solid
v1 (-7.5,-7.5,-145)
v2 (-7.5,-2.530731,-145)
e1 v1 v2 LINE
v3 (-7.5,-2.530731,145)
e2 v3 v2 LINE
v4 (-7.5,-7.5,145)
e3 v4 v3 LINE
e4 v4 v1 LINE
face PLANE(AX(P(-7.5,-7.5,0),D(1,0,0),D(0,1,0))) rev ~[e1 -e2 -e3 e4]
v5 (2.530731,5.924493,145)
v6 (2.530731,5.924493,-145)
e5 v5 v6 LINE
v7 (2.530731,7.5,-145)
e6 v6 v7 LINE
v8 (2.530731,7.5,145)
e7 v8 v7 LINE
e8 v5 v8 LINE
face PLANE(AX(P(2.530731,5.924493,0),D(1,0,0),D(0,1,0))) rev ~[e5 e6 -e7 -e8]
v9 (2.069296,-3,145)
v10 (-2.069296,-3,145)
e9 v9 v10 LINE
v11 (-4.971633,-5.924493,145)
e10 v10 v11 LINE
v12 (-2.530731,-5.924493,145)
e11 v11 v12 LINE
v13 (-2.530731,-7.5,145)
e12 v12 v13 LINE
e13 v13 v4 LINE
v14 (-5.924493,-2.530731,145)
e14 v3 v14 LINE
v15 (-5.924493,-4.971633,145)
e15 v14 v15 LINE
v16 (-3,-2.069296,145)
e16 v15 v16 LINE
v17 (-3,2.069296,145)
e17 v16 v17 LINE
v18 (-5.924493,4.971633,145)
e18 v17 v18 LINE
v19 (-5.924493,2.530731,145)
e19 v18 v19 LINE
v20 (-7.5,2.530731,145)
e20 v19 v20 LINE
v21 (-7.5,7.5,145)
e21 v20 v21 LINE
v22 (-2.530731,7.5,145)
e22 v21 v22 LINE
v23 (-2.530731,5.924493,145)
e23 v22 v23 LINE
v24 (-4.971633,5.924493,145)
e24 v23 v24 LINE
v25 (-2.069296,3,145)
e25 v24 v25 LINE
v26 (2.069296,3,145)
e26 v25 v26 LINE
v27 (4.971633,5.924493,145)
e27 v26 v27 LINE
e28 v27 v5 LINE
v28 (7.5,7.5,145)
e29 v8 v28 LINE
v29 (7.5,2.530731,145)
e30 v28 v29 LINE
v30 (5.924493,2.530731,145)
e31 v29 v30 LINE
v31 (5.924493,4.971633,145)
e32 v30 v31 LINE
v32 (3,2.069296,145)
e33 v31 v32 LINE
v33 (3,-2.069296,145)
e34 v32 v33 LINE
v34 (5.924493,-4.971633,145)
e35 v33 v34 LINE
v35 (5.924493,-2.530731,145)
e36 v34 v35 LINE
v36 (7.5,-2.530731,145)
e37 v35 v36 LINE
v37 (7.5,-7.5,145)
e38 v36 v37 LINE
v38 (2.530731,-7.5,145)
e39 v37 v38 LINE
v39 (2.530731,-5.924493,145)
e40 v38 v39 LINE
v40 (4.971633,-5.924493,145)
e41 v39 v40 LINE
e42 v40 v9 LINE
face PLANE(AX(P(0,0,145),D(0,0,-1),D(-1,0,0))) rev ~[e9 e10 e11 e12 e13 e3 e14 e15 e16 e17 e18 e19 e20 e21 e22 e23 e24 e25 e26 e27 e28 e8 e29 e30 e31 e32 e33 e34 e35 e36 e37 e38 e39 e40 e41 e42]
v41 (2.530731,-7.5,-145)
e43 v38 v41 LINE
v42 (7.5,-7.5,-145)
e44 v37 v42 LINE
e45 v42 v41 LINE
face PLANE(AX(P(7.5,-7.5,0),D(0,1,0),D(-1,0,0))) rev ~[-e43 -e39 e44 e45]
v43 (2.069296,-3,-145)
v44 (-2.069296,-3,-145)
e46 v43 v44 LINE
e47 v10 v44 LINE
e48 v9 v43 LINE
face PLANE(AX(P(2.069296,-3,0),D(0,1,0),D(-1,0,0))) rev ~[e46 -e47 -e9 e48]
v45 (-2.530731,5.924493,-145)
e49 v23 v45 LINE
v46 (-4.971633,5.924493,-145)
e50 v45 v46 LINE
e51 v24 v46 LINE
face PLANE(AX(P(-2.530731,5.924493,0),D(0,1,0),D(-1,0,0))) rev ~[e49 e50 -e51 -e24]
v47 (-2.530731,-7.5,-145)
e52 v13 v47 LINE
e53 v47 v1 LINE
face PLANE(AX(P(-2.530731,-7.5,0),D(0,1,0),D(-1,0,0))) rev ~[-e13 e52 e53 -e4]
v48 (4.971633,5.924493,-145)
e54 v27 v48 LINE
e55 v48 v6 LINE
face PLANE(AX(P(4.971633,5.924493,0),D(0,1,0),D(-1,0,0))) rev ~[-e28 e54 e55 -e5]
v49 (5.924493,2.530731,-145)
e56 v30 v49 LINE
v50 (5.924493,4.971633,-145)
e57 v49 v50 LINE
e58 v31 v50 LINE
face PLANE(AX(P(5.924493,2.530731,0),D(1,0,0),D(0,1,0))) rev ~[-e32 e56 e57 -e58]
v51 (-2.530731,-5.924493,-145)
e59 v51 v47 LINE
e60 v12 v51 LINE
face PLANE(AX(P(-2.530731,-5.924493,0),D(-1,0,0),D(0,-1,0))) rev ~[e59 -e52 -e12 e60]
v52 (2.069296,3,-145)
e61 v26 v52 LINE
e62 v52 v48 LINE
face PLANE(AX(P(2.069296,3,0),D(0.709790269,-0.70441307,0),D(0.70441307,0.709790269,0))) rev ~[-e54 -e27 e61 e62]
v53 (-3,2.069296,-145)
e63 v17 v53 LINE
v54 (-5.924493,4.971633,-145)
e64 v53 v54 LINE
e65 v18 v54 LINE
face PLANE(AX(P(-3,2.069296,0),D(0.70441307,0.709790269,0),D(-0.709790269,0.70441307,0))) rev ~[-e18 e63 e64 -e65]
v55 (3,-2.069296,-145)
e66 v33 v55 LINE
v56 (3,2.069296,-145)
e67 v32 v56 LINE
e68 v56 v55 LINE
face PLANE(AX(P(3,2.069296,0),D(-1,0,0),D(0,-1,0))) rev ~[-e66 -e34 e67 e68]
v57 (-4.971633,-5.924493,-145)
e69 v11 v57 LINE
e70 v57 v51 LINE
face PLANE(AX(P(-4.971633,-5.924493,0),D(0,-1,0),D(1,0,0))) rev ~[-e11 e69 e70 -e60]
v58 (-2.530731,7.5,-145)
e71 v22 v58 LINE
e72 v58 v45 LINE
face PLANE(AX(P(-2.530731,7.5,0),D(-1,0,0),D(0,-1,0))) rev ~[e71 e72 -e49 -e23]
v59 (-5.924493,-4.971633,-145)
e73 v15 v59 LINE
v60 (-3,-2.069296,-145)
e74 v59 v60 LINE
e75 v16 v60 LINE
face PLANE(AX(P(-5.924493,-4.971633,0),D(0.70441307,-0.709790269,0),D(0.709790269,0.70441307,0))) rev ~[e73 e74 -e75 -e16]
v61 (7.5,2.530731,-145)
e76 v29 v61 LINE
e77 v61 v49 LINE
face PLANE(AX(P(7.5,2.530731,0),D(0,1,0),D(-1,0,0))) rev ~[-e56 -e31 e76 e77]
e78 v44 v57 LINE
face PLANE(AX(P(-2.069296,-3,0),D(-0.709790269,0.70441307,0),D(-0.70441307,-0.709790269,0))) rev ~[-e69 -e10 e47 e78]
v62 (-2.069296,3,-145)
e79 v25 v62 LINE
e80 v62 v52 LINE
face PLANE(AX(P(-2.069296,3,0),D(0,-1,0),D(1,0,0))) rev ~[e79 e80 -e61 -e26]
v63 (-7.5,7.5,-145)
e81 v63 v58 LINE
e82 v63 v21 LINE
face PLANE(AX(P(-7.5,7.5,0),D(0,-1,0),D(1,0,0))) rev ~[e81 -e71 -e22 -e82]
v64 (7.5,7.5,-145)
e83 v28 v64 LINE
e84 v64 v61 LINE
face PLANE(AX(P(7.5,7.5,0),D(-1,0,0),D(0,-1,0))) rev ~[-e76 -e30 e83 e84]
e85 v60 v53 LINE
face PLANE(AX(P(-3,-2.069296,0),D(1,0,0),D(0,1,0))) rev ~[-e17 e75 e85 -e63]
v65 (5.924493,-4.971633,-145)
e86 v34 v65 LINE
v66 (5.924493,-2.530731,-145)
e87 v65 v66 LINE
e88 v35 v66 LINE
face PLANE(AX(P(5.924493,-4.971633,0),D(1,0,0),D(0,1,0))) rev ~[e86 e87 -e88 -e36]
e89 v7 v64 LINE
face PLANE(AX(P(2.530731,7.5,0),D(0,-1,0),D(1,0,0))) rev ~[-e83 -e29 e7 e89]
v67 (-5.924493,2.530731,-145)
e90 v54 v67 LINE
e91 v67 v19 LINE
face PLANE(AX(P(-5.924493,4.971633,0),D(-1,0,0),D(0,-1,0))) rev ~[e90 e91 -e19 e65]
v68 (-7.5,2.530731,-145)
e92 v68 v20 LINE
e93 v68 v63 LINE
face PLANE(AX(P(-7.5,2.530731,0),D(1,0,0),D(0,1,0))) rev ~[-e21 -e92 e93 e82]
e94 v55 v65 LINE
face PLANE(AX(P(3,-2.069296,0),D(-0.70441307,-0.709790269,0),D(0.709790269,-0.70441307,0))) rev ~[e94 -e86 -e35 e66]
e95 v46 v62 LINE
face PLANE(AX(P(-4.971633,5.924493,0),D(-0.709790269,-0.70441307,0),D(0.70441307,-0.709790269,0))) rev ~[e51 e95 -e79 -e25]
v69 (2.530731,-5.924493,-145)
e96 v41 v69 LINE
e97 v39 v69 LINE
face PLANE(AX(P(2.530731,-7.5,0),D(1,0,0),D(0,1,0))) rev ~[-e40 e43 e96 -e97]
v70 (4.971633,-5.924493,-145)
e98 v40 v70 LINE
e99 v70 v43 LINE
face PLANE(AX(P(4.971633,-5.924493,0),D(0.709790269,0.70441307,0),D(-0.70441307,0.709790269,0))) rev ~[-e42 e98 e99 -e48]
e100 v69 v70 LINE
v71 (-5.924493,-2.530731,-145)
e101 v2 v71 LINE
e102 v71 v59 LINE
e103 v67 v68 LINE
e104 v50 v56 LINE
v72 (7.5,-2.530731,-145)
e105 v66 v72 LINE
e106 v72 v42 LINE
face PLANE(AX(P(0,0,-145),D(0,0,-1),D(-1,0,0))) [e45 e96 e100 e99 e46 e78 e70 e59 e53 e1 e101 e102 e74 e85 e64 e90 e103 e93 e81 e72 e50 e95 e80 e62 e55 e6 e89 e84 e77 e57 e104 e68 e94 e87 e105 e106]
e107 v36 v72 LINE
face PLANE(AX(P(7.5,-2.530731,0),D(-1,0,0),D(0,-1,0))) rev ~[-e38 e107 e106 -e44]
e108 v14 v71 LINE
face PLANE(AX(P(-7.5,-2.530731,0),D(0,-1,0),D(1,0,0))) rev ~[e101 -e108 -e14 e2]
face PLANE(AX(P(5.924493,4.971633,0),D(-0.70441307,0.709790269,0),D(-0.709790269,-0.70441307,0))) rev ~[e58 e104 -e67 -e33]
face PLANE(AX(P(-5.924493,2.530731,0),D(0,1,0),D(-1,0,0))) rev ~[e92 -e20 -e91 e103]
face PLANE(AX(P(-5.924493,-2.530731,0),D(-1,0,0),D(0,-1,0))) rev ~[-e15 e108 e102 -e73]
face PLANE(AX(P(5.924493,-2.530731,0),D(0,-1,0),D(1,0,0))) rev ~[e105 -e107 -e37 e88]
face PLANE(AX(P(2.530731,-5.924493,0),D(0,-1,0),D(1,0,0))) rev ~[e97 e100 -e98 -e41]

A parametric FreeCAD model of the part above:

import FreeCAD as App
import Part
import Sketcher
from FreeCAD import Vector
Q = App.Units.Quantity

doc = App.newDocument("Part")
body = doc.addObject("PartDesign::Body", "Body")

# Sketch on XY plane
sketch1 = doc.addObject("Sketcher::SketchObject", "Sketch")
body.addObject(sketch1)
sketch1.AttachmentSupport = (doc.XY_Plane, [""])
sketch1.MapMode = "FlatFace"
sketch1.addGeometry([
    Part.LineSegment(Vector(-2.5, 7.5, 0), Vector(-7.5, 7.5, 0)),  # 0
    Part.LineSegment(Vector(-7.5, 7.5, 0), Vector(-7.5, 2.5, 0)),  # 1
    Part.LineSegment(Vector(-7.5, 2.5, 0), Vector(-5.9, 2.5, 0)),  # 2
    Part.LineSegment(Vector(-5.9, 2.5, 0), Vector(-5.9, 5, 0)),  # 3
    Part.LineSegment(Vector(-5.9, 5, 0), Vector(-3, 2.1, 0)),  # 4
    Part.LineSegment(Vector(-3, 2.1, 0), Vector(-3, -2.1, 0)),  # 5
    Part.LineSegment(Vector(-3, -2.1, 0), Vector(-5.9, -5, 0)),  # 6
    Part.LineSegment(Vector(-5.9, -5, 0), Vector(-5.9, -2.5, 0)),  # 7
    Part.LineSegment(Vector(-5.9, -2.5, 0), Vector(-7.5, -2.5, 0)),  # 8
    Part.LineSegment(Vector(-7.5, -2.5, 0), Vector(-7.5, -7.5, 0)),  # 9
    Part.LineSegment(Vector(-7.5, -7.5, 0), Vector(-2.5, -7.5, 0)),  # 10
    Part.LineSegment(Vector(-2.5, -7.5, 0), Vector(-2.5, -5.9, 0)),  # 11
    Part.LineSegment(Vector(-2.5, -5.9, 0), Vector(-5, -5.9, 0)),  # 12
    Part.LineSegment(Vector(-5, -5.9, 0), Vector(-2.1, -3, 0)),  # 13
    Part.LineSegment(Vector(-2.1, -3, 0), Vector(2.1, -3, 0)),  # 14
    Part.LineSegment(Vector(2.1, -3, 0), Vector(5, -5.9, 0)),  # 15
    Part.LineSegment(Vector(5, -5.9, 0), Vector(2.5, -5.9, 0)),  # 16
    Part.LineSegment(Vector(2.5, -5.9, 0), Vector(2.5, -7.5, 0)),  # 17
    Part.LineSegment(Vector(2.5, -7.5, 0), Vector(7.5, -7.5, 0)),  # 18
    Part.LineSegment(Vector(7.5, -7.5, 0), Vector(7.5, -2.5, 0)),  # 19
    Part.LineSegment(Vector(7.5, -2.5, 0), Vector(5.9, -2.5, 0)),  # 20
    Part.LineSegment(Vector(5.9, -2.5, 0), Vector(5.9, -5, 0)),  # 21
    Part.LineSegment(Vector(5.9, -5, 0), Vector(3, -2.1, 0)),  # 22
    Part.LineSegment(Vector(3, -2.1, 0), Vector(3, 2.1, 0)),  # 23
    Part.LineSegment(Vector(3, 2.1, 0), Vector(5.9, 5, 0)),  # 24
    Part.LineSegment(Vector(5.9, 5, 0), Vector(5.9, 2.5, 0)),  # 25
    Part.LineSegment(Vector(5.9, 2.5, 0), Vector(7.5, 2.5, 0)),  # 26
    Part.LineSegment(Vector(7.5, 2.5, 0), Vector(7.5, 7.5, 0)),  # 27
    Part.LineSegment(Vector(7.5, 7.5, 0), Vector(2.5, 7.5, 0)),  # 28
    Part.LineSegment(Vector(2.5, 7.5, 0), Vector(2.5, 5.9, 0)),  # 29
    Part.LineSegment(Vector(2.5, 5.9, 0), Vector(5, 5.9, 0)),  # 30
    Part.LineSegment(Vector(5, 5.9, 0), Vector(2.1, 3, 0)),  # 31
    Part.LineSegment(Vector(2.1, 3, 0), Vector(-2.1, 3, 0)),  # 32
    Part.LineSegment(Vector(-2.1, 3, 0), Vector(-5, 5.9, 0)),  # 33
    Part.LineSegment(Vector(-5, 5.9, 0), Vector(-2.5, 5.9, 0)),  # 34
    Part.LineSegment(Vector(-2.5, 5.9, 0), Vector(-2.5, 7.5, 0)),  # 35
], False)
sketch1.addConstraint([
    Sketcher.Constraint("Coincident", 0, 2, 1, 1),
    Sketcher.Constraint("Coincident", 1, 2, 2, 1),
    Sketcher.Constraint("Coincident", 2, 2, 3, 1),
    Sketcher.Constraint("Coincident", 3, 2, 4, 1),
    Sketcher.Constraint("Coincident", 4, 2, 5, 1),
    Sketcher.Constraint("Coincident", 5, 2, 6, 1),
    Sketcher.Constraint("Coincident", 6, 2, 7, 1),
    Sketcher.Constraint("Coincident", 7, 2, 8, 1),
    Sketcher.Constraint("Coincident", 8, 2, 9, 1),
    Sketcher.Constraint("Coincident", 9, 2, 10, 1),
    Sketcher.Constraint("Coincident", 10, 2, 11, 1),
    Sketcher.Constraint("Coincident", 11, 2, 12, 1),
    Sketcher.Constraint("Coincident", 12, 2, 13, 1),
    Sketcher.Constraint("Coincident", 13, 2, 14, 1),
    Sketcher.Constraint("Coincident", 14, 2, 15, 1),
    Sketcher.Constraint("Coincident", 15, 2, 16, 1),
    Sketcher.Constraint("Coincident", 16, 2, 17, 1),
    Sketcher.Constraint("Coincident", 17, 2, 18, 1),
    Sketcher.Constraint("Coincident", 18, 2, 19, 1),
    Sketcher.Constraint("Coincident", 19, 2, 20, 1),
    Sketcher.Constraint("Coincident", 20, 2, 21, 1),
    Sketcher.Constraint("Coincident", 21, 2, 22, 1),
    Sketcher.Constraint("Coincident", 22, 2, 23, 1),
    Sketcher.Constraint("Coincident", 23, 2, 24, 1),
    Sketcher.Constraint("Coincident", 24, 2, 25, 1),
    Sketcher.Constraint("Coincident", 25, 2, 26, 1),
    Sketcher.Constraint("Coincident", 26, 2, 27, 1),
    Sketcher.Constraint("Coincident", 27, 2, 28, 1),
    Sketcher.Constraint("Coincident", 28, 2, 29, 1),
    Sketcher.Constraint("Coincident", 29, 2, 30, 1),
    Sketcher.Constraint("Coincident", 30, 2, 31, 1),
    Sketcher.Constraint("Coincident", 31, 2, 32, 1),
    Sketcher.Constraint("Coincident", 32, 2, 33, 1),
    Sketcher.Constraint("Coincident", 33, 2, 34, 1),
    Sketcher.Constraint("Coincident", 34, 2, 35, 1),
    Sketcher.Constraint("Coincident", 35, 2, 0, 1),
    Sketcher.Constraint("Horizontal", 0),
    Sketcher.Constraint("Vertical", 1),
    Sketcher.Constraint("Horizontal", 2),
    Sketcher.Constraint("Vertical", 3),
    Sketcher.Constraint("Vertical", 5),
    Sketcher.Constraint("Vertical", 7),
    Sketcher.Constraint("Horizontal", 8),
    Sketcher.Constraint("Vertical", 9),
    Sketcher.Constraint("Horizontal", 10),
    Sketcher.Constraint("Vertical", 11),
    Sketcher.Constraint("Horizontal", 12),
    Sketcher.Constraint("Horizontal", 14),
    Sketcher.Constraint("Horizontal", 16),
    Sketcher.Constraint("Vertical", 17),
    Sketcher.Constraint("Horizontal", 18),
    Sketcher.Constraint("Vertical", 19),
    Sketcher.Constraint("Horizontal", 20),
    Sketcher.Constraint("Vertical", 21),
    Sketcher.Constraint("Vertical", 23),
    Sketcher.Constraint("Vertical", 25),
    Sketcher.Constraint("Horizontal", 26),
    Sketcher.Constraint("Vertical", 27),
    Sketcher.Constraint("Horizontal", 28),
    Sketcher.Constraint("Vertical", 29),
    Sketcher.Constraint("Horizontal", 30),
    Sketcher.Constraint("Horizontal", 32),
    Sketcher.Constraint("Horizontal", 34),
    Sketcher.Constraint("Vertical", 35),
    Sketcher.Constraint("Symmetric", 0, 2, 18, 2, -1, 1),
    Sketcher.Constraint("Symmetric", 2, 2, 20, 2, -1, 1),
    Sketcher.Constraint("Symmetric", 4, 2, 22, 2, -1, 1),
    Sketcher.Constraint("Symmetric", 6, 2, 24, 2, -1, 1),
    Sketcher.Constraint("Symmetric", 8, 2, 26, 2, -1, 1),
    Sketcher.Constraint("Symmetric", 10, 2, 28, 2, -1, 1),
    Sketcher.Constraint("Symmetric", 12, 2, 30, 2, -1, 1),
    Sketcher.Constraint("Symmetric", 13, 2, 31, 2, -1, 1),
    Sketcher.Constraint("Symmetric", 15, 2, 33, 2, -1, 1),
    Sketcher.Constraint("Symmetric", 12, 2, 15, 2, -2),
    Sketcher.Constraint("Symmetric", 10, 2, 17, 2, -2),
    Sketcher.Constraint("Symmetric", 8, 2, 19, 2, -2),
    Sketcher.Constraint("Symmetric", 6, 2, 21, 2, -2),
    Sketcher.Constraint("Perpendicular", 4, 13),
    Sketcher.Constraint("Perpendicular", 6, 15),
    Sketcher.Constraint("Perpendicular", 13, 22),
    Sketcher.Constraint("Perpendicular", 15, 24),
    Sketcher.Constraint("Perpendicular", 24, 33),
    Sketcher.Constraint("Horizontal", 5, 2, 22, 2),
    Sketcher.Constraint("Vertical", 11, 2, 34, 2),
    Sketcher.Constraint("Equal", 28, 1),
    Sketcher.Constraint("Equal", 34, 3),
    Sketcher.Constraint("Equal", 32, 5),
    Sketcher.Constraint("Equal", 26, 11),
    Sketcher.Constraint("Equal", 6, 13),
    Sketcher.Constraint("DistanceX", 4, 2, -1, 1, Q("3 mm")),
    Sketcher.Constraint("DistanceX", 0, 2, -1, 1, Q("7.5 mm")),
    Sketcher.Constraint("DistanceX", 0, 2, 0, 1, Q("4.969269 mm")),
    Sketcher.Constraint("DistanceX", 14, 1, 14, 2, Q("4.138592 mm")),
    Sketcher.Constraint("Distance", 4, Q("4.120221 mm")),
    Sketcher.Constraint("DistanceX", 2, 1, 2, 2, Q("1.575507 mm")),
])
pad1 = doc.addObject("PartDesign::Pad", "Pad")
body.addObject(pad1)
pad1.Profile = sketch1
pad1.Length = 290
pad1.Midplane = True

doc.recompute()
